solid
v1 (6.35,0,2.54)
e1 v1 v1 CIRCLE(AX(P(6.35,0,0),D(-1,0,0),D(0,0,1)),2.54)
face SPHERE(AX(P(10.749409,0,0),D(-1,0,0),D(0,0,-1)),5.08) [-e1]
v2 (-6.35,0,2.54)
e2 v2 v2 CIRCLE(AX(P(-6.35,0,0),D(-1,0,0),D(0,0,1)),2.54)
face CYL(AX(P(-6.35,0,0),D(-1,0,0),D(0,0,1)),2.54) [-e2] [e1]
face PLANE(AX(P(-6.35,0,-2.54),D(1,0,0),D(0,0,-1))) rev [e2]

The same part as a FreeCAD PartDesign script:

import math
import FreeCAD as App
import Part
import Sketcher

V = App.Vector
Q = App.Units.Quantity

doc = App.newDocument("Part")
body = doc.addObject("PartDesign::Body", "Body")

# Sketch on XZ plane
sketch1 = body.newObject("Sketcher::SketchObject", "Sketch")
sketch1.AttachmentSupport = (doc.getObject("XZ_Plane"), [""])
sketch1.MapMode = "FlatFace"
sketch1.addGeometry([
    Part.LineSegment(V(-6.35, 0, 0), V(15.829409, 0, 0)),
    Part.ArcOfCircle(Part.Circle(V(10.749409, 0, 0), V(0, 0, 1), 5.08), math.radians(-150), math.radians(0)),
    Part.LineSegment(V(6.35, -2.54, 0), V(-6.35, -2.54, 0)),
    Part.LineSegment(V(-6.35, -2.54, 0), V(-6.35, 0, 0)),
], False)
sketch1.addConstraint([
    Sketcher.Constraint("Coincident", 0, 2, 1, 2),
    Sketcher.Constraint("Coincident", 1, 1, 2, 1),
    Sketcher.Constraint("Coincident", 2, 2, 3, 1),
    Sketcher.Constraint("Coincident", 3, 2, 0, 1),
    Sketcher.Constraint("Horizontal", 0),
    Sketcher.Constraint("Horizontal", 2),
    Sketcher.Constraint("Vertical", 3),
    Sketcher.Constraint("PointOnObject", 1, 3, -1),
    Sketcher.Constraint("PointOnObject", 0, 2, -1),
    Sketcher.Constraint("Radius", 1, Q("0.2 in")),
    Sketcher.Constraint("DistanceX", 2, 2, 2, 1, Q("0.5 in")),
    Sketcher.Constraint("DistanceY", 3, 1, 3, 2, Q("0.1 in")),
    Sketcher.Constraint("DistanceX", -1, 1, 1, 1, Q("0.25 in")),
])
revolution = body.newObject("PartDesign::Revolution", "Revolution")
revolution.Profile = sketch1
revolution.ReferenceAxis = (sketch1, ["H_Axis"])
revolution.Angle = 360

doc.recompute()
